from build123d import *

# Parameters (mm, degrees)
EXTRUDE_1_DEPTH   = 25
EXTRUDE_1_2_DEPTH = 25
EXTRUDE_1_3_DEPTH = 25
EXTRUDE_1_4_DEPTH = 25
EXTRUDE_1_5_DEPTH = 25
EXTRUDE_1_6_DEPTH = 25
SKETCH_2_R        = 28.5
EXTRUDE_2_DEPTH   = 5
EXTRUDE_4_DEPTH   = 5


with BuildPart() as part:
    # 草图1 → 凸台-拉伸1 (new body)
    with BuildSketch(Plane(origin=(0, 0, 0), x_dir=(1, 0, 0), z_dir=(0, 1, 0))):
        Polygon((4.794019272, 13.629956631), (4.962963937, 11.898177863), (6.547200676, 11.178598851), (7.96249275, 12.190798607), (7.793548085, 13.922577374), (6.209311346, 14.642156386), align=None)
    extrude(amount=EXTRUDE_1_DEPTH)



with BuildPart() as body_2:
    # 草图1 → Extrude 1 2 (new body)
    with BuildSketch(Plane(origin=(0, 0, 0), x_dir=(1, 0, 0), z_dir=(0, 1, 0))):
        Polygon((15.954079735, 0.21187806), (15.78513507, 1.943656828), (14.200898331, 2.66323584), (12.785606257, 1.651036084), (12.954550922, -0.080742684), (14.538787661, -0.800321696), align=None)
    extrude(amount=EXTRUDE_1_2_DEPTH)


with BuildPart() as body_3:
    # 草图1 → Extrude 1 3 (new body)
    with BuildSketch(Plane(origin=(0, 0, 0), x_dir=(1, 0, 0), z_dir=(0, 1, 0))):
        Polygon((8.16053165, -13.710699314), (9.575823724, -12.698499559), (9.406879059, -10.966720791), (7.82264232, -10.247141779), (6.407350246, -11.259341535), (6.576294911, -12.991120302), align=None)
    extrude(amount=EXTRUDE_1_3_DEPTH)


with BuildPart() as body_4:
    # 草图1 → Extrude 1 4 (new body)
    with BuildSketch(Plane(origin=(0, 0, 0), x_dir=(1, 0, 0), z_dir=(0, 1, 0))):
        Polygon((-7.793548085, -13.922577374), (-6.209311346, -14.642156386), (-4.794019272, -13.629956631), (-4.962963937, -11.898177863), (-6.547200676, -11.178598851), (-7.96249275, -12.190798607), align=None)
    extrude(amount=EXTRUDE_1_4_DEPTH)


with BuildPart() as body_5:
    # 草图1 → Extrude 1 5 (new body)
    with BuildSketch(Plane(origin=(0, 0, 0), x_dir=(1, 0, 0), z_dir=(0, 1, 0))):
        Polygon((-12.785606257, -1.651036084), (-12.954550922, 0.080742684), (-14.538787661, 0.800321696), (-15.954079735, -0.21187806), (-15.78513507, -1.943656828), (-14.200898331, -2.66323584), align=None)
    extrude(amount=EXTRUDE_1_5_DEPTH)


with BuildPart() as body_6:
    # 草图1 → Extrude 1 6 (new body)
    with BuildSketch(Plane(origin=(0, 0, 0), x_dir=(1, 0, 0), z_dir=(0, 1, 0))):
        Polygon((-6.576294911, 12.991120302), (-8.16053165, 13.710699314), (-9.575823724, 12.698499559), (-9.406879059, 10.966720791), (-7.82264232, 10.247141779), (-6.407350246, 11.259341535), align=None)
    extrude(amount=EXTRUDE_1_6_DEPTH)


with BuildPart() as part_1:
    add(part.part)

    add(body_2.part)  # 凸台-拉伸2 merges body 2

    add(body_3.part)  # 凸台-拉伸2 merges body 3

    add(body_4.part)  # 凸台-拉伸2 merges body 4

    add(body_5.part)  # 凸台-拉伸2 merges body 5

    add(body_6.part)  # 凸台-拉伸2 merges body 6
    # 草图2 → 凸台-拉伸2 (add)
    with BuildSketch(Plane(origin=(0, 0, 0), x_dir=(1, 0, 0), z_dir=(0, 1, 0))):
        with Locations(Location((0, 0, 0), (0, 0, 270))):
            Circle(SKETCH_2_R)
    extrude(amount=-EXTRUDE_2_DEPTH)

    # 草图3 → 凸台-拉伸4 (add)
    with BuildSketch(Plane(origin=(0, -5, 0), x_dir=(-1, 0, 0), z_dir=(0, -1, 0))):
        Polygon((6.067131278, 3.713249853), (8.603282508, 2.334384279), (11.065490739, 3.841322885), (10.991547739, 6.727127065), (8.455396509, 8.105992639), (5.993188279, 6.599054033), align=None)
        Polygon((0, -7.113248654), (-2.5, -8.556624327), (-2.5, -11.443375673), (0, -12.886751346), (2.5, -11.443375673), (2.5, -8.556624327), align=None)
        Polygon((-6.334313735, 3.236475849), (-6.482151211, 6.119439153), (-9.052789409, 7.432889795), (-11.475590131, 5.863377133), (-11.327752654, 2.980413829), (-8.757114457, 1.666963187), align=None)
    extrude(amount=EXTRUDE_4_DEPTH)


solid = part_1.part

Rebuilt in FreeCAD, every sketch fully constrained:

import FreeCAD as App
import Part
import Sketcher

V = App.Vector
Q = App.Units.Quantity


def add_polygon(sketch, points):
    """Adds a closed chain of lines whose ends are joined by coincident constraints."""
    first, n = sketch.GeometryCount, len(points)
    for a, b in zip(points, points[1:] + points[:1]):
        sketch.addGeometry(Part.LineSegment(App.Vector(*a, 0), App.Vector(*b, 0)), False)
    for i in range(n):
        sketch.addConstraint(Sketcher.Constraint("Coincident", first + i, 2, first + (i + 1) % n, 1))

doc = App.newDocument("Part")
params = doc.addObject("Spreadsheet::Sheet", "Params")
for row, (alias, value) in enumerate([
    ("sketch1_length", "1.74 mm"),
    ("pad1_length", "25 mm"),
    ("sketch2_length", "1.74 mm"),
    ("pad2_length", "25 mm"),
    ("sketch3_length", "1.74 mm"),
    ("pad3_length", "25 mm"),
    ("sketch4_length", "1.74 mm"),
    ("pad4_length", "25 mm"),
    ("sketch5_length", "1.74 mm"),
    ("pad5_length", "25 mm"),
    ("sketch6_length", "1.74 mm"),
    ("pad6_length", "25 mm"),
    ("sketch7_diameter", "57 mm"),
    ("pad7_length", "5 mm"),
    ("pad8_length", "5 mm"),
], start=1):
    params.set(f"A{row}", alias)
    params.set(f"B{row}", "=" + value)
    params.setAlias(f"B{row}", alias)

body = doc.addObject("PartDesign::Body", "Body")

# Sketch on XZ plane
sketch1 = body.newObject("Sketcher::SketchObject", "Sketch")
sketch1.AttachmentSupport = (doc.getObject("XZ_Plane"), [""])
sketch1.MapMode = "FlatFace"
add_polygon(sketch1, [(4.8, -13.6), (5, -11.9), (6.5, -11.2), (8, -12.2), (7.8, -13.9), (6.2, -14.6)])  # lines 0-5
sketch1.addConstraint([
    Sketcher.Constraint("Parallel", 0, 3),
    Sketcher.Constraint("Parallel", 1, 4),
    Sketcher.Constraint("Parallel", 2, 5),
    Sketcher.Constraint("Equal", 0, 1),
    Sketcher.Constraint("Equal", 1, 2),
    Sketcher.Constraint("Equal", 2, 3),
    Sketcher.Constraint("Distance", 0, 1.74),
    Sketcher.Constraint("DistanceX", -1, 1, 1, 2, 6.547201),
    Sketcher.Constraint("DistanceY", 1, 2, -1, 1, 11.178599),
    Sketcher.Constraint("DistanceY", 2, 2, -1, 1, 12.190799),
    Sketcher.Constraint("DistanceY", 3, 2, 0, 2, 2.0244),
    Sketcher.Constraint("DistanceX", -1, 1, 3, 2, 7.793548),
])
sketch1.setExpression("Constraints[12]", "Params.sketch1_length")
pad1 = body.newObject("PartDesign::Pad", "Pad")
pad1.Profile = sketch1
pad1.setExpression("Length", "Params.pad1_length")
pad1.Reversed = True
body2 = doc.addObject("PartDesign::Body", "Body001")

# Sketch on XZ plane
sketch2 = body2.newObject("Sketcher::SketchObject", "Sketch001")
sketch2.AttachmentSupport = (doc.getObject("XZ_Plane001"), [""])
sketch2.MapMode = "FlatFace"
add_polygon(sketch2, [(16, -0.2), (15.8, -1.9), (14.2, -2.7), (12.8, -1.7), (13, 0.1), (14.5, 0.8)])  # lines 0-5
sketch2.addConstraint([
    Sketcher.Constraint("Parallel", 0, 3),
    Sketcher.Constraint("Parallel", 1, 4),
    Sketcher.Constraint("Parallel", 2, 5),
    Sketcher.Constraint("Equal", 0, 1),
    Sketcher.Constraint("Equal", 1, 2),
    Sketcher.Constraint("Equal", 2, 3),
    Sketcher.Constraint("Distance", 0, 1.74),
    Sketcher.Constraint("DistanceX", -1, 1, 1, 2, 14.200898),
    Sketcher.Constraint("DistanceY", 1, 2, 2, 2, 1.0122),
    Sketcher.Constraint("DistanceY", 0, 2, 3, 2, 2.0244),
    Sketcher.Constraint("DistanceX", -1, 1, 3, 2, 12.954551),
    Sketcher.Constraint("DistanceY", -1, 1, 4, 2, 0.800322),
])
sketch2.setExpression("Constraints[12]", "Params.sketch2_length")
pad2 = body2.newObject("PartDesign::Pad", "Pad001")
pad2.Profile = sketch2
pad2.setExpression("Length", "Params.pad2_length")
pad2.Reversed = True
body3 = doc.addObject("PartDesign::Body", "Body002")

# Sketch on XZ plane
sketch3 = body3.newObject("Sketcher::SketchObject", "Sketch002")
sketch3.AttachmentSupport = (doc.getObject("XZ_Plane002"), [""])
sketch3.MapMode = "FlatFace"
add_polygon(sketch3, [(8.2, 13.7), (9.6, 12.7), (9.4, 11), (7.8, 10.2), (6.4, 11.3), (6.6, 13)])  # lines 0-5
sketch3.addConstraint([
    Sketcher.Constraint("Parallel", 0, 3),
    Sketcher.Constraint("Parallel", 1, 4),
    Sketcher.Constraint("Parallel", 2, 5),
    Sketcher.Constraint("Equal", 0, 1),
    Sketcher.Constraint("Equal", 1, 2),
    Sketcher.Constraint("Equal", 2, 3),
    Sketcher.Constraint("Distance", 0, 1.74),
    Sketcher.Constraint("DistanceY", -1, 1, 0, 2, 12.6985),
    Sketcher.Constraint("DistanceY", -1, 1, 5, 2, 13.710699),
    Sketcher.Constraint("DistanceY", 1, 2, 4, 2, 2.0244),
    Sketcher.Constraint("DistanceX", -1, 1, 1, 2, 9.406879),
    Sketcher.Constraint("DistanceY", -1, 1, 1, 2, 10.966721),
])
sketch3.setExpression("Constraints[12]", "Params.sketch3_length")
pad3 = body3.newObject("PartDesign::Pad", "Pad002")
pad3.Profile = sketch3
pad3.setExpression("Length", "Params.pad3_length")
pad3.Reversed = True
body4 = doc.addObject("PartDesign::Body", "Body003")

# Sketch on XZ plane
sketch4 = body4.newObject("Sketcher::SketchObject", "Sketch003")
sketch4.AttachmentSupport = (doc.getObject("XZ_Plane003"), [""])
sketch4.MapMode = "FlatFace"
add_polygon(sketch4, [(-7.8, 13.9), (-6.2, 14.6), (-4.8, 13.6), (-5, 11.9), (-6.5, 11.2), (-8, 12.2)])  # lines 0-5
sketch4.addConstraint([
    Sketcher.Constraint("Parallel", 0, 3),
    Sketcher.Constraint("Parallel", 1, 4),
    Sketcher.Constraint("Parallel", 2, 5),
    Sketcher.Constraint("Equal", 0, 1),
    Sketcher.Constraint("Equal", 1, 2),
    Sketcher.Constraint("Equal", 2, 3),
    Sketcher.Constraint("Distance", 0, 1.74),
    Sketcher.Constraint("DistanceX", 3, 2, -1, 1, 6.547201),
    Sketcher.Constraint("DistanceY", -1, 1, 3, 2, 11.178599),
    Sketcher.Constraint("DistanceY", -1, 1, 4, 2, 12.190799),
    Sketcher.Constraint("DistanceY", 2, 2, 5, 2, 2.0244),
    Sketcher.Constraint("DistanceX", 0, 2, -1, 1, 6.209311),
])
sketch4.setExpression("Constraints[12]", "Params.sketch4_length")
pad4 = body4.newObject("PartDesign::Pad", "Pad003")
pad4.Profile = sketch4
pad4.setExpression("Length", "Params.pad4_length")
pad4.Reversed = True
body5 = doc.addObject("PartDesign::Body", "Body004")

# Sketch on XZ plane
sketch5 = body5.newObject("Sketcher::SketchObject", "Sketch004")
sketch5.AttachmentSupport = (doc.getObject("XZ_Plane004"), [""])
sketch5.MapMode = "FlatFace"
add_polygon(sketch5, [(-12.8, 1.7), (-13, -0.1), (-14.5, -0.8), (-16, 0.2), (-15.8, 1.9), (-14.2, 2.7)])  # lines 0-5
sketch5.addConstraint([
    Sketcher.Constraint("Parallel", 0, 3),
    Sketcher.Constraint("Parallel", 1, 4),
    Sketcher.Constraint("Parallel", 2, 5),
    Sketcher.Constraint("Equal", 0, 1),
    Sketcher.Constraint("Equal", 1, 2),
    Sketcher.Constraint("Equal", 2, 3),
    Sketcher.Constraint("Distance", 0, 1.74),
    Sketcher.Constraint("DistanceX", 4, 2, -1, 1, 14.200898),
    Sketcher.Constraint("DistanceY", 1, 2, 2, 2, 1.0122),
    Sketcher.Constraint("DistanceY", 0, 2, 3, 2, 2.0244),
    Sketcher.Constraint("DistanceX", 0, 2, -1, 1, 12.954551),
    Sketcher.Constraint("DistanceY", 1, 2, -1, 1, 0.800322),
])
sketch5.setExpression("Constraints[12]", "Params.sketch5_length")
pad5 = body5.newObject("PartDesign::Pad", "Pad004")
pad5.Profile = sketch5
pad5.setExpression("Length", "Params.pad5_length")
pad5.Reversed = True
body6 = doc.addObject("PartDesign::Body", "Body005")

# Sketch on XZ plane
sketch6 = body6.newObject("Sketcher::SketchObject", "Sketch005")
sketch6.AttachmentSupport = (doc.getObject("XZ_Plane005"), [""])
sketch6.MapMode = "FlatFace"
add_polygon(sketch6, [(-6.6, -13), (-8.2, -13.7), (-9.6, -12.7), (-9.4, -11), (-7.8, -10.2), (-6.4, -11.3)])  # lines 0-5
sketch6.addConstraint([
    Sketcher.Constraint("Parallel", 0, 3),
    Sketcher.Constraint("Parallel", 1, 4),
    Sketcher.Constraint("Parallel", 2, 5),
    Sketcher.Constraint("Equal", 0, 1),
    Sketcher.Constraint("Equal", 1, 2),
    Sketcher.Constraint("Equal", 2, 3),
    Sketcher.Constraint("Distance", 0, 1.74),
    Sketcher.Constraint("DistanceY", 0, 2, -1, 1, 13.710699),
    Sketcher.Constraint("DistanceY", 1, 2, -1, 1, 12.6985),
    Sketcher.Constraint("DistanceY", 5, 2, 2, 2, 2.0244),
    Sketcher.Constraint("DistanceX", 0, 2, -1, 1, 8.160532),
    Sketcher.Constraint("DistanceX", 2, 2, -1, 1, 9.406879),
])
sketch6.setExpression("Constraints[12]", "Params.sketch6_length")
pad6 = body6.newObject("PartDesign::Pad", "Pad005")
pad6.Profile = sketch6
pad6.setExpression("Length", "Params.pad6_length")
pad6.Reversed = True
body.AllowCompound = True
doc.recompute()

boolean = body.newObject("PartDesign::Boolean", "Boolean")
boolean.Type = "Fuse"
boolean.addObjects([body2])
doc.recompute()

boolean2 = body.newObject("PartDesign::Boolean", "Boolean001")
boolean2.Type = "Fuse"
boolean2.addObjects([body3])
doc.recompute()

boolean3 = body.newObject("PartDesign::Boolean", "Boolean002")
boolean3.Type = "Fuse"
boolean3.addObjects([body4])
doc.recompute()

boolean4 = body.newObject("PartDesign::Boolean", "Boolean003")
boolean4.Type = "Fuse"
boolean4.addObjects([body5])
doc.recompute()

boolean5 = body.newObject("PartDesign::Boolean", "Boolean004")
boolean5.Type = "Fuse"
boolean5.addObjects([body6])

# Sketch on XZ plane
sketch7 = body.newObject("Sketcher::SketchObject", "Sketch006")
sketch7.AttachmentSupport = (doc.getObject("XZ_Plane"), [""])
sketch7.MapMode = "FlatFace"
sketch7.addGeometry(Part.Circle(V(0, 0, 0), V(0, 0, 1), 28), False)
sketch7.addConstraint([
    Sketcher.Constraint("Coincident", 0, 3, -1, 1),
    Sketcher.Constraint("Diameter", 0, 57.0),
])
sketch7.setExpression("Constraints[1]", "Params.sketch7_diameter")
pad7 = body.newObject("PartDesign::Pad", "Pad006")
pad7.Profile = sketch7
pad7.setExpression("Length", "Params.pad7_length")

# Sketch on XZ plane
sketch8 = body.newObject("Sketcher::SketchObject", "Sketch007")
sketch8.AttachmentSupport = (doc.getObject("XZ_Plane"), [""])
sketch8.MapMode = "FlatFace"
sketch8.AttachmentOffset = App.Placement(V(0, 0, 5), App.Rotation())
add_polygon(sketch8, [(-6.1, -3.7), (-8.6, -2.3), (-11.1, -3.8), (-11, -6.7), (-8.5, -8.1), (-6, -6.6)])  # lines 0-5
add_polygon(sketch8, [(0, 7.1), (2.5, 8.6), (2.5, 11.4), (0, 12.9), (-2.5, 11.4), (-2.5, 8.6)])  # lines 6-11
add_polygon(sketch8, [(6.3, -3.2), (6.5, -6.1), (9.1, -7.4), (11.5, -5.9), (11.3, -3), (8.8, -1.7)])  # lines 12-17
sketch8.addConstraint([
    Sketcher.Constraint("Vertical", 7),
    Sketcher.Constraint("Vertical", 10),
    Sketcher.Constraint("Symmetric", 7, 2, 9, 2, -2),
    Sketcher.Constraint("PointOnObject", 8, 2, -2),
    Sketcher.Constraint("PointOnObject", 11, 2, -2),
    Sketcher.Constraint("Parallel", 0, 3),
    Sketcher.Constraint("Parallel", 1, 4),
    Sketcher.Constraint("Parallel", 2, 5),
    Sketcher.Constraint("Parallel", 6, 9),
    Sketcher.Constraint("Parallel", 8, 11),
    Sketcher.Constraint("Parallel", 12, 15),
    Sketcher.Constraint("Parallel", 13, 16),
    Sketcher.Constraint("Parallel", 14, 17),
    Sketcher.Constraint("Equal", 0, 1),
    Sketcher.Constraint("Equal", 1, 2),
    Sketcher.Constraint("Equal", 2, 3),
    Sketcher.Constraint("Equal", 5, 6),
    Sketcher.Constraint("Equal", 11, 12),
    Sketcher.Constraint("Equal", 12, 13),
    Sketcher.Constraint("Equal", 13, 14),
    Sketcher.Constraint("Equal", 14, 15),
    Sketcher.Constraint("Angle", 6, Q("30 deg")),
    Sketcher.Constraint("DistanceX", 9, 2, 7, 2, 5.0),
    Sketcher.Constraint("DistanceY", 5, 2, 8, 2, 16.600001),
    Sketcher.Constraint("DistanceY", 14, 2, 6, 2, 14.420001),
    Sketcher.Constraint("DistanceY", 7, 1, 7, 2, 2.886751),
    Sketcher.Constraint("DistanceY", 1, 2, 7, 2, 15.284699),
    Sketcher.Constraint("DistanceX", 13, 2, 14, 2, 2.422801),
    Sketcher.Constraint("DistanceX", 12, 2, 15, 2, 4.845601),
    Sketcher.Constraint("DistanceY", 14, 2, 17, 2, 2.626901),
    Sketcher.Constraint("DistanceX", 1, 2, -1, 1, 11.065491),
    Sketcher.Constraint("DistanceX", 4, 2, -1, 1, 5.993188),
    Sketcher.Constraint("DistanceX", 5, 2, -1, 1, 6.067131),
    Sketcher.Constraint("DistanceY", 5, 2, -1, 1, 3.71325),
    Sketcher.Constraint("DistanceX", -1, 1, 12, 2, 6.482151),
])
pad8 = body.newObject("PartDesign::Pad", "Pad007")
pad8.Profile = sketch8
pad8.setExpression("Length", "Params.pad8_length")

doc.recompute()
